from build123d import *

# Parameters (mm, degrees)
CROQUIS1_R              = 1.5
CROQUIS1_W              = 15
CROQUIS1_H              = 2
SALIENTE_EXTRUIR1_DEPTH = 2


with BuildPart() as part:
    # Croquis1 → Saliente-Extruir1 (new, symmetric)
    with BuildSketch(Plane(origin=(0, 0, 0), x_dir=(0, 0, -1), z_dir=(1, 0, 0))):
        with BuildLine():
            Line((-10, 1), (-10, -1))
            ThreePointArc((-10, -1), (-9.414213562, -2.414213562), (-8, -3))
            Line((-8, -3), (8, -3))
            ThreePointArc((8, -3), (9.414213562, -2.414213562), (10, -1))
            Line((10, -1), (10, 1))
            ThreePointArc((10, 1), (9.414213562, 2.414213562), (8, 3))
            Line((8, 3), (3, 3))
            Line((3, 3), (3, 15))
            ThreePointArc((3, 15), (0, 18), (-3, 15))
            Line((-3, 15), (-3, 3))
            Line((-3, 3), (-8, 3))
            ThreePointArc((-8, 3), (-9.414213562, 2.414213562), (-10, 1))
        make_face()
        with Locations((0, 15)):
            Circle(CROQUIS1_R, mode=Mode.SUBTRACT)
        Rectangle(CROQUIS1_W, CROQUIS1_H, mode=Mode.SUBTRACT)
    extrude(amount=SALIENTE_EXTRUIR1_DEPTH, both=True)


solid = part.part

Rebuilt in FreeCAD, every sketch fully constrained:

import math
import FreeCAD as App
import Part
import Sketcher
from FreeCAD import Vector


def add_polygon(sketch, points):
    """Adds a closed chain of lines whose ends are joined by coincident constraints."""
    first, n = sketch.GeometryCount, len(points)
    for a, b in zip(points, points[1:] + points[:1]):
        sketch.addGeometry(Part.LineSegment(App.Vector(*a, 0), App.Vector(*b, 0)), False)
    for i in range(n):
        sketch.addConstraint(Sketcher.Constraint("Coincident", first + i, 2, first + (i + 1) % n, 1))

doc = App.newDocument("Part")
body = doc.addObject("PartDesign::Body", "Body")

sketch1 = body.newObject("Sketcher::SketchObject", "Sketch")
sketch1.AttachmentSupport = (doc.getObject("YZ_Plane"), [""])
sketch1.MapMode = "FlatFace"
sketch1.addGeometry(Part.LineSegment(Vector(1, 10, 0), Vector(-1, 10, 0)), False)
sketch1.addGeometry(Part.ArcOfCircle(Part.Circle(Vector(-1, 8, 0), Vector(0, 0, 1), 2), math.radians(90), math.radians(180)), False)
sketch1.addGeometry(Part.LineSegment(Vector(-3, 8, 0), Vector(-3, -8, 0)), False)
sketch1.addGeometry(Part.ArcOfCircle(Part.Circle(Vector(-1, -8, 0), Vector(0, 0, 1), 2), math.radians(-180), math.radians(-90)), False)
sketch1.addGeometry(Part.LineSegment(Vector(-1, -10, 0), Vector(1, -10, 0)), False)
sketch1.addGeometry(Part.ArcOfCircle(Part.Circle(Vector(1, -8, 0), Vector(0, 0, 1), 2), math.radians(-90), math.radians(0)), False)
sketch1.addGeometry(Part.LineSegment(Vector(3, -8, 0), Vector(3, -3, 0)), False)
sketch1.addGeometry(Part.LineSegment(Vector(3, -3, 0), Vector(15, -3, 0)), False)
sketch1.addGeometry(Part.ArcOfCircle(Part.Circle(Vector(15, 0, 0), Vector(0, 0, 1), 3), math.radians(-90), math.radians(90)), False)
sketch1.addGeometry(Part.LineSegment(Vector(15, 3, 0), Vector(3, 3, 0)), False)
sketch1.addGeometry(Part.LineSegment(Vector(3, 3, 0), Vector(3, 8, 0)), False)
sketch1.addGeometry(Part.ArcOfCircle(Part.Circle(Vector(1, 8, 0), Vector(0, 0, 1), 2), math.radians(0), math.radians(90)), False)
add_polygon(sketch1, [(-1, -7.5), (-1, 7.5), (1, 7.5), (1, -7.5)])
sketch1.addGeometry(Part.Circle(Vector(15, 0, 0), Vector(0, 0, 1), 1.5), False)
sketch1.addConstraint(Sketcher.Constraint("Tangent", 0, 2, 1, 1))
sketch1.addConstraint(Sketcher.Constraint("Tangent", 1, 2, 2, 1))
sketch1.addConstraint(Sketcher.Constraint("Tangent", 2, 2, 3, 1))
sketch1.addConstraint(Sketcher.Constraint("Tangent", 3, 2, 4, 1))
sketch1.addConstraint(Sketcher.Constraint("Tangent", 4, 2, 5, 1))
sketch1.addConstraint(Sketcher.Constraint("Tangent", 5, 2, 6, 1))
sketch1.addConstraint(Sketcher.Constraint("Coincident", 6, 2, 7, 1))
sketch1.addConstraint(Sketcher.Constraint("Tangent", 7, 2, 8, 1))
sketch1.addConstraint(Sketcher.Constraint("Tangent", 8, 2, 9, 1))
sketch1.addConstraint(Sketcher.Constraint("Coincident", 9, 2, 10, 1))
sketch1.addConstraint(Sketcher.Constraint("Tangent", 10, 2, 11, 1))
sketch1.addConstraint(Sketcher.Constraint("Tangent", 11, 2, 0, 1))
sketch1.addConstraint(Sketcher.Constraint("Horizontal", 0))
sketch1.addConstraint(Sketcher.Constraint("Vertical", 2))
sketch1.addConstraint(Sketcher.Constraint("Horizontal", 4))
sketch1.addConstraint(Sketcher.Constraint("Vertical", 6))
sketch1.addConstraint(Sketcher.Constraint("Horizontal", 7))
sketch1.addConstraint(Sketcher.Constraint("Horizontal", 9))
sketch1.addConstraint(Sketcher.Constraint("Vertical", 10))
sketch1.addConstraint(Sketcher.Constraint("Vertical", 12))
sketch1.addConstraint(Sketcher.Constraint("Horizontal", 13))
sketch1.addConstraint(Sketcher.Constraint("Vertical", 14))
sketch1.addConstraint(Sketcher.Constraint("Horizontal", 15))
sketch1.addConstraint(Sketcher.Constraint("Coincident", 16, 3, 8, 3))
sketch1.addConstraint(Sketcher.Constraint("Equal", 1, 3))
sketch1.addConstraint(Sketcher.Constraint("Equal", 3, 5))
sketch1.addConstraint(Sketcher.Constraint("Equal", 5, 11))
sketch1.addConstraint(Sketcher.Constraint("Symmetric", 1, 3, 5, 3, -1, 1))
sketch1.addConstraint(Sketcher.Constraint("Symmetric", 12, 2, 14, 2, -1, 1))
sketch1.addConstraint(Sketcher.Constraint("Symmetric", 6, 2, 9, 2, -1))
sketch1.addConstraint(Sketcher.Constraint("Vertical", 3, 2, 12, 2))
sketch1.addConstraint(Sketcher.Constraint("Diameter", 16, 3.0))
sketch1.addConstraint(Sketcher.Constraint("Radius", 1, 2.0))
sketch1.addConstraint(Sketcher.Constraint("Radius", 8, 3.0))
sketch1.addConstraint(Sketcher.Constraint("DistanceX", 0, 2, 0, 1, 2.0))
sketch1.addConstraint(Sketcher.Constraint("DistanceX", 7, 1, 7, 2, 12.0))
sketch1.addConstraint(Sketcher.Constraint("DistanceY", 2, 2, 2, 1, 16.0))
sketch1.addConstraint(Sketcher.Constraint("DistanceY", 12, 1, 12, 2, 15.0))
pad1 = body.newObject("PartDesign::Pad", "Pad")
pad1.Profile = sketch1
pad1.Length = 4
pad1.Midplane = True

doc.recompute()
